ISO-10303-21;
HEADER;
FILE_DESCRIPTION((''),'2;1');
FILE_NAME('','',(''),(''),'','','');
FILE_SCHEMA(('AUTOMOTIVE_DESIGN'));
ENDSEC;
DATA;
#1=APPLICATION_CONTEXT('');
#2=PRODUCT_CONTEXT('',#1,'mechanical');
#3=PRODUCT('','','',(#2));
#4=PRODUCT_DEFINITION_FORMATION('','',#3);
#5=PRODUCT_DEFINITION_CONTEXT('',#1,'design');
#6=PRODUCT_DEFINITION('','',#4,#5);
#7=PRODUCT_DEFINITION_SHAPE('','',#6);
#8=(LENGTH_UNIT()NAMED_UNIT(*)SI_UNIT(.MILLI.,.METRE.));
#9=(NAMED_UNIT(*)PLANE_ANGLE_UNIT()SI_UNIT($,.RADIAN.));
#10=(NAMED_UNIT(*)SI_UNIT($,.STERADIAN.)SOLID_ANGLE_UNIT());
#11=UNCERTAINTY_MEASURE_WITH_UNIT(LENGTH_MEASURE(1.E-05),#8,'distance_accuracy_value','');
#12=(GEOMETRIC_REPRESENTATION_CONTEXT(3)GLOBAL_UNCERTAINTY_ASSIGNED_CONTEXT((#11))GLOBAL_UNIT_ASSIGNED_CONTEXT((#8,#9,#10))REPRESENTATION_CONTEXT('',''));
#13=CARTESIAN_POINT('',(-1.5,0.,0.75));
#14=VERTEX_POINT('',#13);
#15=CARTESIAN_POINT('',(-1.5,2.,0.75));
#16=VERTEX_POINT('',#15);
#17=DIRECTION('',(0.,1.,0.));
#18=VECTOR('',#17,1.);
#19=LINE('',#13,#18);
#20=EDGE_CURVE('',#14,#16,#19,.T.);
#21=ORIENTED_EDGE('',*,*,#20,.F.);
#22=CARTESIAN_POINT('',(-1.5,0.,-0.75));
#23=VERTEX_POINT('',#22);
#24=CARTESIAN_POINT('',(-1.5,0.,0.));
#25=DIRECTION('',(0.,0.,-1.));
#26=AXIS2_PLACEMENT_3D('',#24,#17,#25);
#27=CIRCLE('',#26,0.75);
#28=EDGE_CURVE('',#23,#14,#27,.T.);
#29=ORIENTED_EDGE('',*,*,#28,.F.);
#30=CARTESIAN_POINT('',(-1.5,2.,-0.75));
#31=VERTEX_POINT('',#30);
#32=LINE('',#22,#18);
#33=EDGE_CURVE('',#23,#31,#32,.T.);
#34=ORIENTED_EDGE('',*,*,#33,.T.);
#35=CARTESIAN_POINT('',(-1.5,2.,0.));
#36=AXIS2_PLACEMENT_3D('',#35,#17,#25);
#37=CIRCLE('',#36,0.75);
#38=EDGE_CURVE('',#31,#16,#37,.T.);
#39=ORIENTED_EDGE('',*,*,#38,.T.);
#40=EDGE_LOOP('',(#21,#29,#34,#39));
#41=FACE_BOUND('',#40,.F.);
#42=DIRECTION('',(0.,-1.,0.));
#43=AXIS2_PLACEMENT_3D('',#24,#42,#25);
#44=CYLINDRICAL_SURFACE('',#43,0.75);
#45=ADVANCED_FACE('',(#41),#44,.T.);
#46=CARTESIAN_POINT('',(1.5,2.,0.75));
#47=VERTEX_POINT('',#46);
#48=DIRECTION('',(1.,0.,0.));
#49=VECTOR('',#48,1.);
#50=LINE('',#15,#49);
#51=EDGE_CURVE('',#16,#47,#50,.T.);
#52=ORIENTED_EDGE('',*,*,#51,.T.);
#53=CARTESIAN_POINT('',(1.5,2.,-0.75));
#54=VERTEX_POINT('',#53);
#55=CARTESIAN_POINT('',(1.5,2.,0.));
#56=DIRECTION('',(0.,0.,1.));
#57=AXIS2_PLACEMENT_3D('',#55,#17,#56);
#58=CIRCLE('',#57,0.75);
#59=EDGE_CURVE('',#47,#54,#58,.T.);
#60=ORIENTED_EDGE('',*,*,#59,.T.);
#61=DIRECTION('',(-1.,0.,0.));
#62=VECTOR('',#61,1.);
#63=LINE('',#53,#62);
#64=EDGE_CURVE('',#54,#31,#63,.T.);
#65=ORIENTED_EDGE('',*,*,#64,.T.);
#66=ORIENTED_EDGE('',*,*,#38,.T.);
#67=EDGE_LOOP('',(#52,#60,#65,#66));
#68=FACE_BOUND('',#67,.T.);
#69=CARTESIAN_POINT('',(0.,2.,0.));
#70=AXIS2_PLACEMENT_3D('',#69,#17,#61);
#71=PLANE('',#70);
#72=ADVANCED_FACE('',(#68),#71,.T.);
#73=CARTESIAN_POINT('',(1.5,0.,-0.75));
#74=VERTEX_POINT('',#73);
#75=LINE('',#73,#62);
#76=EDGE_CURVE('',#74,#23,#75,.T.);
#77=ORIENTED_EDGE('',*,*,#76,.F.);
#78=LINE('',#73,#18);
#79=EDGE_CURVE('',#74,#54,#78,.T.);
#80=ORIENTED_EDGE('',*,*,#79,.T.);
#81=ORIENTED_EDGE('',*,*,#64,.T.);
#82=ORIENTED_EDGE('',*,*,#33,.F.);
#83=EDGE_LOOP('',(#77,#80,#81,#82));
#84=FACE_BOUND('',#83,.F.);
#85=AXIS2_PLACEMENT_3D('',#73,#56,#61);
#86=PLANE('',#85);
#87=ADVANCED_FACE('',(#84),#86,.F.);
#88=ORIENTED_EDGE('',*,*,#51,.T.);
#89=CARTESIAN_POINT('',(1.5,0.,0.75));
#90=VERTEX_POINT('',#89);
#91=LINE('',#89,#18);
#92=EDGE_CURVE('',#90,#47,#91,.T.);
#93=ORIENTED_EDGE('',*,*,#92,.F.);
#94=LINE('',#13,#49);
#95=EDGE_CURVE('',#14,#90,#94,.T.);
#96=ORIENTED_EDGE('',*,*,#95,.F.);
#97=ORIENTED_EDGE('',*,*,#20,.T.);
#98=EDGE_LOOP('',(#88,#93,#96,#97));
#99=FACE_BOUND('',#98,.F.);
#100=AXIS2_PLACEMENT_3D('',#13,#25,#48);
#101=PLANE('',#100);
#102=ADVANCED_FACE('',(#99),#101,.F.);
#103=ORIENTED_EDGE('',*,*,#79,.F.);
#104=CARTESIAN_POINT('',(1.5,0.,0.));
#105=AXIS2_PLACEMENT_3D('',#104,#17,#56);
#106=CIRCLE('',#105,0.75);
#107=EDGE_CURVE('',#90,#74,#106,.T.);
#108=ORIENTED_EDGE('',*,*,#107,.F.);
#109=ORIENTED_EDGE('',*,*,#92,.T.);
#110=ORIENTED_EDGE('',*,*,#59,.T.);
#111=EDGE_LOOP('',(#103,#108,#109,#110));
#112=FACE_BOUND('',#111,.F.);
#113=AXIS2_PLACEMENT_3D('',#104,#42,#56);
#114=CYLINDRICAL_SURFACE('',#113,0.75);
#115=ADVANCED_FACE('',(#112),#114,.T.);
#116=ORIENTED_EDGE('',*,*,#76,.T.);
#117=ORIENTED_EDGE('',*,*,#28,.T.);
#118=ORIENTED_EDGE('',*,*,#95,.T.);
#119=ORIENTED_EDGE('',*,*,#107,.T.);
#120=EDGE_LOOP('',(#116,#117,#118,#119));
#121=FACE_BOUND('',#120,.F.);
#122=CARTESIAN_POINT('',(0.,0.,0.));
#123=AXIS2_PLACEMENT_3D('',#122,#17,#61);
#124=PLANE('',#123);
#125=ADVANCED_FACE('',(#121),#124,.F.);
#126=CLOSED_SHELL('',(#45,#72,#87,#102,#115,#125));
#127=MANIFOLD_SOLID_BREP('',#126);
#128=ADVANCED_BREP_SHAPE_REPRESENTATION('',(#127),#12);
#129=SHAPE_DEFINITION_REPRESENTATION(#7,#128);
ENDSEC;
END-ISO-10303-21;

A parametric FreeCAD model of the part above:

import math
import FreeCAD as App
import Part
import Sketcher
Q = App.Units.Quantity

doc = App.newDocument("Part")
params = doc.addObject("Spreadsheet::Sheet", "Params")
for row, (alias, value) in enumerate([
    ("sketch1_radius", "0.75 mm"),
    ("pad1_length", "2 mm"),
], start=1):
    params.set(f"A{row}", alias)
    params.set(f"B{row}", "=" + value)
    params.setAlias(f"B{row}", alias)

body = doc.addObject("PartDesign::Body", "Body")

sketch1 = body.newObject("Sketcher::SketchObject", "Sketch")
sketch1.AttachmentSupport = (doc.getObject("XZ_Plane"), [""])
sketch1.MapMode = "FlatFace"
sketch1.addGeometry(Part.ArcOfCircle(Part.Circle(App.Vector(-1.5, 0, 0), App.Vector(0, 0, 1), 0.8), math.radians(90), math.radians(270)), False)
sketch1.addGeometry(Part.LineSegment(App.Vector(-1.5, 0.8, 0), App.Vector(1.5, 0.8, 0)), False)
sketch1.addGeometry(Part.ArcOfCircle(Part.Circle(App.Vector(1.5, 0, 0), App.Vector(0, 0, 1), 0.8), math.radians(-90), math.radians(90)), False)
sketch1.addGeometry(Part.LineSegment(App.Vector(1.5, -0.8, 0), App.Vector(-1.5, -0.8, 0)), False)
sketch1.addConstraint(Sketcher.Constraint("Tangent", 0, 1, 1, 1))
sketch1.addConstraint(Sketcher.Constraint("Tangent", 1, 2, 2, 2))
sketch1.addConstraint(Sketcher.Constraint("Tangent", 2, 1, 3, 1))
sketch1.addConstraint(Sketcher.Constraint("Tangent", 3, 2, 0, 2))
sketch1.addConstraint(Sketcher.Constraint("Horizontal", 1))
sketch1.addConstraint(Sketcher.Constraint("Horizontal", 3))
sketch1.addConstraint(Sketcher.Constraint("Symmetric", 0, 3, 2, 3, -1, 1))
sketch1.addConstraint(Sketcher.Constraint("Radius", 0, Q("0.75 mm")))
sketch1.addConstraint(Sketcher.Constraint("DistanceX", 0, 3, -1, 1, Q("1.5 mm")))
sketch1.setExpression("Constraints[7]", "Params.sketch1_radius")
pad1 = body.newObject("PartDesign::Pad", "Pad")
pad1.Profile = sketch1
pad1.setExpression("Length", "Params.pad1_length")
pad1.Reversed = True

doc.recompute()
